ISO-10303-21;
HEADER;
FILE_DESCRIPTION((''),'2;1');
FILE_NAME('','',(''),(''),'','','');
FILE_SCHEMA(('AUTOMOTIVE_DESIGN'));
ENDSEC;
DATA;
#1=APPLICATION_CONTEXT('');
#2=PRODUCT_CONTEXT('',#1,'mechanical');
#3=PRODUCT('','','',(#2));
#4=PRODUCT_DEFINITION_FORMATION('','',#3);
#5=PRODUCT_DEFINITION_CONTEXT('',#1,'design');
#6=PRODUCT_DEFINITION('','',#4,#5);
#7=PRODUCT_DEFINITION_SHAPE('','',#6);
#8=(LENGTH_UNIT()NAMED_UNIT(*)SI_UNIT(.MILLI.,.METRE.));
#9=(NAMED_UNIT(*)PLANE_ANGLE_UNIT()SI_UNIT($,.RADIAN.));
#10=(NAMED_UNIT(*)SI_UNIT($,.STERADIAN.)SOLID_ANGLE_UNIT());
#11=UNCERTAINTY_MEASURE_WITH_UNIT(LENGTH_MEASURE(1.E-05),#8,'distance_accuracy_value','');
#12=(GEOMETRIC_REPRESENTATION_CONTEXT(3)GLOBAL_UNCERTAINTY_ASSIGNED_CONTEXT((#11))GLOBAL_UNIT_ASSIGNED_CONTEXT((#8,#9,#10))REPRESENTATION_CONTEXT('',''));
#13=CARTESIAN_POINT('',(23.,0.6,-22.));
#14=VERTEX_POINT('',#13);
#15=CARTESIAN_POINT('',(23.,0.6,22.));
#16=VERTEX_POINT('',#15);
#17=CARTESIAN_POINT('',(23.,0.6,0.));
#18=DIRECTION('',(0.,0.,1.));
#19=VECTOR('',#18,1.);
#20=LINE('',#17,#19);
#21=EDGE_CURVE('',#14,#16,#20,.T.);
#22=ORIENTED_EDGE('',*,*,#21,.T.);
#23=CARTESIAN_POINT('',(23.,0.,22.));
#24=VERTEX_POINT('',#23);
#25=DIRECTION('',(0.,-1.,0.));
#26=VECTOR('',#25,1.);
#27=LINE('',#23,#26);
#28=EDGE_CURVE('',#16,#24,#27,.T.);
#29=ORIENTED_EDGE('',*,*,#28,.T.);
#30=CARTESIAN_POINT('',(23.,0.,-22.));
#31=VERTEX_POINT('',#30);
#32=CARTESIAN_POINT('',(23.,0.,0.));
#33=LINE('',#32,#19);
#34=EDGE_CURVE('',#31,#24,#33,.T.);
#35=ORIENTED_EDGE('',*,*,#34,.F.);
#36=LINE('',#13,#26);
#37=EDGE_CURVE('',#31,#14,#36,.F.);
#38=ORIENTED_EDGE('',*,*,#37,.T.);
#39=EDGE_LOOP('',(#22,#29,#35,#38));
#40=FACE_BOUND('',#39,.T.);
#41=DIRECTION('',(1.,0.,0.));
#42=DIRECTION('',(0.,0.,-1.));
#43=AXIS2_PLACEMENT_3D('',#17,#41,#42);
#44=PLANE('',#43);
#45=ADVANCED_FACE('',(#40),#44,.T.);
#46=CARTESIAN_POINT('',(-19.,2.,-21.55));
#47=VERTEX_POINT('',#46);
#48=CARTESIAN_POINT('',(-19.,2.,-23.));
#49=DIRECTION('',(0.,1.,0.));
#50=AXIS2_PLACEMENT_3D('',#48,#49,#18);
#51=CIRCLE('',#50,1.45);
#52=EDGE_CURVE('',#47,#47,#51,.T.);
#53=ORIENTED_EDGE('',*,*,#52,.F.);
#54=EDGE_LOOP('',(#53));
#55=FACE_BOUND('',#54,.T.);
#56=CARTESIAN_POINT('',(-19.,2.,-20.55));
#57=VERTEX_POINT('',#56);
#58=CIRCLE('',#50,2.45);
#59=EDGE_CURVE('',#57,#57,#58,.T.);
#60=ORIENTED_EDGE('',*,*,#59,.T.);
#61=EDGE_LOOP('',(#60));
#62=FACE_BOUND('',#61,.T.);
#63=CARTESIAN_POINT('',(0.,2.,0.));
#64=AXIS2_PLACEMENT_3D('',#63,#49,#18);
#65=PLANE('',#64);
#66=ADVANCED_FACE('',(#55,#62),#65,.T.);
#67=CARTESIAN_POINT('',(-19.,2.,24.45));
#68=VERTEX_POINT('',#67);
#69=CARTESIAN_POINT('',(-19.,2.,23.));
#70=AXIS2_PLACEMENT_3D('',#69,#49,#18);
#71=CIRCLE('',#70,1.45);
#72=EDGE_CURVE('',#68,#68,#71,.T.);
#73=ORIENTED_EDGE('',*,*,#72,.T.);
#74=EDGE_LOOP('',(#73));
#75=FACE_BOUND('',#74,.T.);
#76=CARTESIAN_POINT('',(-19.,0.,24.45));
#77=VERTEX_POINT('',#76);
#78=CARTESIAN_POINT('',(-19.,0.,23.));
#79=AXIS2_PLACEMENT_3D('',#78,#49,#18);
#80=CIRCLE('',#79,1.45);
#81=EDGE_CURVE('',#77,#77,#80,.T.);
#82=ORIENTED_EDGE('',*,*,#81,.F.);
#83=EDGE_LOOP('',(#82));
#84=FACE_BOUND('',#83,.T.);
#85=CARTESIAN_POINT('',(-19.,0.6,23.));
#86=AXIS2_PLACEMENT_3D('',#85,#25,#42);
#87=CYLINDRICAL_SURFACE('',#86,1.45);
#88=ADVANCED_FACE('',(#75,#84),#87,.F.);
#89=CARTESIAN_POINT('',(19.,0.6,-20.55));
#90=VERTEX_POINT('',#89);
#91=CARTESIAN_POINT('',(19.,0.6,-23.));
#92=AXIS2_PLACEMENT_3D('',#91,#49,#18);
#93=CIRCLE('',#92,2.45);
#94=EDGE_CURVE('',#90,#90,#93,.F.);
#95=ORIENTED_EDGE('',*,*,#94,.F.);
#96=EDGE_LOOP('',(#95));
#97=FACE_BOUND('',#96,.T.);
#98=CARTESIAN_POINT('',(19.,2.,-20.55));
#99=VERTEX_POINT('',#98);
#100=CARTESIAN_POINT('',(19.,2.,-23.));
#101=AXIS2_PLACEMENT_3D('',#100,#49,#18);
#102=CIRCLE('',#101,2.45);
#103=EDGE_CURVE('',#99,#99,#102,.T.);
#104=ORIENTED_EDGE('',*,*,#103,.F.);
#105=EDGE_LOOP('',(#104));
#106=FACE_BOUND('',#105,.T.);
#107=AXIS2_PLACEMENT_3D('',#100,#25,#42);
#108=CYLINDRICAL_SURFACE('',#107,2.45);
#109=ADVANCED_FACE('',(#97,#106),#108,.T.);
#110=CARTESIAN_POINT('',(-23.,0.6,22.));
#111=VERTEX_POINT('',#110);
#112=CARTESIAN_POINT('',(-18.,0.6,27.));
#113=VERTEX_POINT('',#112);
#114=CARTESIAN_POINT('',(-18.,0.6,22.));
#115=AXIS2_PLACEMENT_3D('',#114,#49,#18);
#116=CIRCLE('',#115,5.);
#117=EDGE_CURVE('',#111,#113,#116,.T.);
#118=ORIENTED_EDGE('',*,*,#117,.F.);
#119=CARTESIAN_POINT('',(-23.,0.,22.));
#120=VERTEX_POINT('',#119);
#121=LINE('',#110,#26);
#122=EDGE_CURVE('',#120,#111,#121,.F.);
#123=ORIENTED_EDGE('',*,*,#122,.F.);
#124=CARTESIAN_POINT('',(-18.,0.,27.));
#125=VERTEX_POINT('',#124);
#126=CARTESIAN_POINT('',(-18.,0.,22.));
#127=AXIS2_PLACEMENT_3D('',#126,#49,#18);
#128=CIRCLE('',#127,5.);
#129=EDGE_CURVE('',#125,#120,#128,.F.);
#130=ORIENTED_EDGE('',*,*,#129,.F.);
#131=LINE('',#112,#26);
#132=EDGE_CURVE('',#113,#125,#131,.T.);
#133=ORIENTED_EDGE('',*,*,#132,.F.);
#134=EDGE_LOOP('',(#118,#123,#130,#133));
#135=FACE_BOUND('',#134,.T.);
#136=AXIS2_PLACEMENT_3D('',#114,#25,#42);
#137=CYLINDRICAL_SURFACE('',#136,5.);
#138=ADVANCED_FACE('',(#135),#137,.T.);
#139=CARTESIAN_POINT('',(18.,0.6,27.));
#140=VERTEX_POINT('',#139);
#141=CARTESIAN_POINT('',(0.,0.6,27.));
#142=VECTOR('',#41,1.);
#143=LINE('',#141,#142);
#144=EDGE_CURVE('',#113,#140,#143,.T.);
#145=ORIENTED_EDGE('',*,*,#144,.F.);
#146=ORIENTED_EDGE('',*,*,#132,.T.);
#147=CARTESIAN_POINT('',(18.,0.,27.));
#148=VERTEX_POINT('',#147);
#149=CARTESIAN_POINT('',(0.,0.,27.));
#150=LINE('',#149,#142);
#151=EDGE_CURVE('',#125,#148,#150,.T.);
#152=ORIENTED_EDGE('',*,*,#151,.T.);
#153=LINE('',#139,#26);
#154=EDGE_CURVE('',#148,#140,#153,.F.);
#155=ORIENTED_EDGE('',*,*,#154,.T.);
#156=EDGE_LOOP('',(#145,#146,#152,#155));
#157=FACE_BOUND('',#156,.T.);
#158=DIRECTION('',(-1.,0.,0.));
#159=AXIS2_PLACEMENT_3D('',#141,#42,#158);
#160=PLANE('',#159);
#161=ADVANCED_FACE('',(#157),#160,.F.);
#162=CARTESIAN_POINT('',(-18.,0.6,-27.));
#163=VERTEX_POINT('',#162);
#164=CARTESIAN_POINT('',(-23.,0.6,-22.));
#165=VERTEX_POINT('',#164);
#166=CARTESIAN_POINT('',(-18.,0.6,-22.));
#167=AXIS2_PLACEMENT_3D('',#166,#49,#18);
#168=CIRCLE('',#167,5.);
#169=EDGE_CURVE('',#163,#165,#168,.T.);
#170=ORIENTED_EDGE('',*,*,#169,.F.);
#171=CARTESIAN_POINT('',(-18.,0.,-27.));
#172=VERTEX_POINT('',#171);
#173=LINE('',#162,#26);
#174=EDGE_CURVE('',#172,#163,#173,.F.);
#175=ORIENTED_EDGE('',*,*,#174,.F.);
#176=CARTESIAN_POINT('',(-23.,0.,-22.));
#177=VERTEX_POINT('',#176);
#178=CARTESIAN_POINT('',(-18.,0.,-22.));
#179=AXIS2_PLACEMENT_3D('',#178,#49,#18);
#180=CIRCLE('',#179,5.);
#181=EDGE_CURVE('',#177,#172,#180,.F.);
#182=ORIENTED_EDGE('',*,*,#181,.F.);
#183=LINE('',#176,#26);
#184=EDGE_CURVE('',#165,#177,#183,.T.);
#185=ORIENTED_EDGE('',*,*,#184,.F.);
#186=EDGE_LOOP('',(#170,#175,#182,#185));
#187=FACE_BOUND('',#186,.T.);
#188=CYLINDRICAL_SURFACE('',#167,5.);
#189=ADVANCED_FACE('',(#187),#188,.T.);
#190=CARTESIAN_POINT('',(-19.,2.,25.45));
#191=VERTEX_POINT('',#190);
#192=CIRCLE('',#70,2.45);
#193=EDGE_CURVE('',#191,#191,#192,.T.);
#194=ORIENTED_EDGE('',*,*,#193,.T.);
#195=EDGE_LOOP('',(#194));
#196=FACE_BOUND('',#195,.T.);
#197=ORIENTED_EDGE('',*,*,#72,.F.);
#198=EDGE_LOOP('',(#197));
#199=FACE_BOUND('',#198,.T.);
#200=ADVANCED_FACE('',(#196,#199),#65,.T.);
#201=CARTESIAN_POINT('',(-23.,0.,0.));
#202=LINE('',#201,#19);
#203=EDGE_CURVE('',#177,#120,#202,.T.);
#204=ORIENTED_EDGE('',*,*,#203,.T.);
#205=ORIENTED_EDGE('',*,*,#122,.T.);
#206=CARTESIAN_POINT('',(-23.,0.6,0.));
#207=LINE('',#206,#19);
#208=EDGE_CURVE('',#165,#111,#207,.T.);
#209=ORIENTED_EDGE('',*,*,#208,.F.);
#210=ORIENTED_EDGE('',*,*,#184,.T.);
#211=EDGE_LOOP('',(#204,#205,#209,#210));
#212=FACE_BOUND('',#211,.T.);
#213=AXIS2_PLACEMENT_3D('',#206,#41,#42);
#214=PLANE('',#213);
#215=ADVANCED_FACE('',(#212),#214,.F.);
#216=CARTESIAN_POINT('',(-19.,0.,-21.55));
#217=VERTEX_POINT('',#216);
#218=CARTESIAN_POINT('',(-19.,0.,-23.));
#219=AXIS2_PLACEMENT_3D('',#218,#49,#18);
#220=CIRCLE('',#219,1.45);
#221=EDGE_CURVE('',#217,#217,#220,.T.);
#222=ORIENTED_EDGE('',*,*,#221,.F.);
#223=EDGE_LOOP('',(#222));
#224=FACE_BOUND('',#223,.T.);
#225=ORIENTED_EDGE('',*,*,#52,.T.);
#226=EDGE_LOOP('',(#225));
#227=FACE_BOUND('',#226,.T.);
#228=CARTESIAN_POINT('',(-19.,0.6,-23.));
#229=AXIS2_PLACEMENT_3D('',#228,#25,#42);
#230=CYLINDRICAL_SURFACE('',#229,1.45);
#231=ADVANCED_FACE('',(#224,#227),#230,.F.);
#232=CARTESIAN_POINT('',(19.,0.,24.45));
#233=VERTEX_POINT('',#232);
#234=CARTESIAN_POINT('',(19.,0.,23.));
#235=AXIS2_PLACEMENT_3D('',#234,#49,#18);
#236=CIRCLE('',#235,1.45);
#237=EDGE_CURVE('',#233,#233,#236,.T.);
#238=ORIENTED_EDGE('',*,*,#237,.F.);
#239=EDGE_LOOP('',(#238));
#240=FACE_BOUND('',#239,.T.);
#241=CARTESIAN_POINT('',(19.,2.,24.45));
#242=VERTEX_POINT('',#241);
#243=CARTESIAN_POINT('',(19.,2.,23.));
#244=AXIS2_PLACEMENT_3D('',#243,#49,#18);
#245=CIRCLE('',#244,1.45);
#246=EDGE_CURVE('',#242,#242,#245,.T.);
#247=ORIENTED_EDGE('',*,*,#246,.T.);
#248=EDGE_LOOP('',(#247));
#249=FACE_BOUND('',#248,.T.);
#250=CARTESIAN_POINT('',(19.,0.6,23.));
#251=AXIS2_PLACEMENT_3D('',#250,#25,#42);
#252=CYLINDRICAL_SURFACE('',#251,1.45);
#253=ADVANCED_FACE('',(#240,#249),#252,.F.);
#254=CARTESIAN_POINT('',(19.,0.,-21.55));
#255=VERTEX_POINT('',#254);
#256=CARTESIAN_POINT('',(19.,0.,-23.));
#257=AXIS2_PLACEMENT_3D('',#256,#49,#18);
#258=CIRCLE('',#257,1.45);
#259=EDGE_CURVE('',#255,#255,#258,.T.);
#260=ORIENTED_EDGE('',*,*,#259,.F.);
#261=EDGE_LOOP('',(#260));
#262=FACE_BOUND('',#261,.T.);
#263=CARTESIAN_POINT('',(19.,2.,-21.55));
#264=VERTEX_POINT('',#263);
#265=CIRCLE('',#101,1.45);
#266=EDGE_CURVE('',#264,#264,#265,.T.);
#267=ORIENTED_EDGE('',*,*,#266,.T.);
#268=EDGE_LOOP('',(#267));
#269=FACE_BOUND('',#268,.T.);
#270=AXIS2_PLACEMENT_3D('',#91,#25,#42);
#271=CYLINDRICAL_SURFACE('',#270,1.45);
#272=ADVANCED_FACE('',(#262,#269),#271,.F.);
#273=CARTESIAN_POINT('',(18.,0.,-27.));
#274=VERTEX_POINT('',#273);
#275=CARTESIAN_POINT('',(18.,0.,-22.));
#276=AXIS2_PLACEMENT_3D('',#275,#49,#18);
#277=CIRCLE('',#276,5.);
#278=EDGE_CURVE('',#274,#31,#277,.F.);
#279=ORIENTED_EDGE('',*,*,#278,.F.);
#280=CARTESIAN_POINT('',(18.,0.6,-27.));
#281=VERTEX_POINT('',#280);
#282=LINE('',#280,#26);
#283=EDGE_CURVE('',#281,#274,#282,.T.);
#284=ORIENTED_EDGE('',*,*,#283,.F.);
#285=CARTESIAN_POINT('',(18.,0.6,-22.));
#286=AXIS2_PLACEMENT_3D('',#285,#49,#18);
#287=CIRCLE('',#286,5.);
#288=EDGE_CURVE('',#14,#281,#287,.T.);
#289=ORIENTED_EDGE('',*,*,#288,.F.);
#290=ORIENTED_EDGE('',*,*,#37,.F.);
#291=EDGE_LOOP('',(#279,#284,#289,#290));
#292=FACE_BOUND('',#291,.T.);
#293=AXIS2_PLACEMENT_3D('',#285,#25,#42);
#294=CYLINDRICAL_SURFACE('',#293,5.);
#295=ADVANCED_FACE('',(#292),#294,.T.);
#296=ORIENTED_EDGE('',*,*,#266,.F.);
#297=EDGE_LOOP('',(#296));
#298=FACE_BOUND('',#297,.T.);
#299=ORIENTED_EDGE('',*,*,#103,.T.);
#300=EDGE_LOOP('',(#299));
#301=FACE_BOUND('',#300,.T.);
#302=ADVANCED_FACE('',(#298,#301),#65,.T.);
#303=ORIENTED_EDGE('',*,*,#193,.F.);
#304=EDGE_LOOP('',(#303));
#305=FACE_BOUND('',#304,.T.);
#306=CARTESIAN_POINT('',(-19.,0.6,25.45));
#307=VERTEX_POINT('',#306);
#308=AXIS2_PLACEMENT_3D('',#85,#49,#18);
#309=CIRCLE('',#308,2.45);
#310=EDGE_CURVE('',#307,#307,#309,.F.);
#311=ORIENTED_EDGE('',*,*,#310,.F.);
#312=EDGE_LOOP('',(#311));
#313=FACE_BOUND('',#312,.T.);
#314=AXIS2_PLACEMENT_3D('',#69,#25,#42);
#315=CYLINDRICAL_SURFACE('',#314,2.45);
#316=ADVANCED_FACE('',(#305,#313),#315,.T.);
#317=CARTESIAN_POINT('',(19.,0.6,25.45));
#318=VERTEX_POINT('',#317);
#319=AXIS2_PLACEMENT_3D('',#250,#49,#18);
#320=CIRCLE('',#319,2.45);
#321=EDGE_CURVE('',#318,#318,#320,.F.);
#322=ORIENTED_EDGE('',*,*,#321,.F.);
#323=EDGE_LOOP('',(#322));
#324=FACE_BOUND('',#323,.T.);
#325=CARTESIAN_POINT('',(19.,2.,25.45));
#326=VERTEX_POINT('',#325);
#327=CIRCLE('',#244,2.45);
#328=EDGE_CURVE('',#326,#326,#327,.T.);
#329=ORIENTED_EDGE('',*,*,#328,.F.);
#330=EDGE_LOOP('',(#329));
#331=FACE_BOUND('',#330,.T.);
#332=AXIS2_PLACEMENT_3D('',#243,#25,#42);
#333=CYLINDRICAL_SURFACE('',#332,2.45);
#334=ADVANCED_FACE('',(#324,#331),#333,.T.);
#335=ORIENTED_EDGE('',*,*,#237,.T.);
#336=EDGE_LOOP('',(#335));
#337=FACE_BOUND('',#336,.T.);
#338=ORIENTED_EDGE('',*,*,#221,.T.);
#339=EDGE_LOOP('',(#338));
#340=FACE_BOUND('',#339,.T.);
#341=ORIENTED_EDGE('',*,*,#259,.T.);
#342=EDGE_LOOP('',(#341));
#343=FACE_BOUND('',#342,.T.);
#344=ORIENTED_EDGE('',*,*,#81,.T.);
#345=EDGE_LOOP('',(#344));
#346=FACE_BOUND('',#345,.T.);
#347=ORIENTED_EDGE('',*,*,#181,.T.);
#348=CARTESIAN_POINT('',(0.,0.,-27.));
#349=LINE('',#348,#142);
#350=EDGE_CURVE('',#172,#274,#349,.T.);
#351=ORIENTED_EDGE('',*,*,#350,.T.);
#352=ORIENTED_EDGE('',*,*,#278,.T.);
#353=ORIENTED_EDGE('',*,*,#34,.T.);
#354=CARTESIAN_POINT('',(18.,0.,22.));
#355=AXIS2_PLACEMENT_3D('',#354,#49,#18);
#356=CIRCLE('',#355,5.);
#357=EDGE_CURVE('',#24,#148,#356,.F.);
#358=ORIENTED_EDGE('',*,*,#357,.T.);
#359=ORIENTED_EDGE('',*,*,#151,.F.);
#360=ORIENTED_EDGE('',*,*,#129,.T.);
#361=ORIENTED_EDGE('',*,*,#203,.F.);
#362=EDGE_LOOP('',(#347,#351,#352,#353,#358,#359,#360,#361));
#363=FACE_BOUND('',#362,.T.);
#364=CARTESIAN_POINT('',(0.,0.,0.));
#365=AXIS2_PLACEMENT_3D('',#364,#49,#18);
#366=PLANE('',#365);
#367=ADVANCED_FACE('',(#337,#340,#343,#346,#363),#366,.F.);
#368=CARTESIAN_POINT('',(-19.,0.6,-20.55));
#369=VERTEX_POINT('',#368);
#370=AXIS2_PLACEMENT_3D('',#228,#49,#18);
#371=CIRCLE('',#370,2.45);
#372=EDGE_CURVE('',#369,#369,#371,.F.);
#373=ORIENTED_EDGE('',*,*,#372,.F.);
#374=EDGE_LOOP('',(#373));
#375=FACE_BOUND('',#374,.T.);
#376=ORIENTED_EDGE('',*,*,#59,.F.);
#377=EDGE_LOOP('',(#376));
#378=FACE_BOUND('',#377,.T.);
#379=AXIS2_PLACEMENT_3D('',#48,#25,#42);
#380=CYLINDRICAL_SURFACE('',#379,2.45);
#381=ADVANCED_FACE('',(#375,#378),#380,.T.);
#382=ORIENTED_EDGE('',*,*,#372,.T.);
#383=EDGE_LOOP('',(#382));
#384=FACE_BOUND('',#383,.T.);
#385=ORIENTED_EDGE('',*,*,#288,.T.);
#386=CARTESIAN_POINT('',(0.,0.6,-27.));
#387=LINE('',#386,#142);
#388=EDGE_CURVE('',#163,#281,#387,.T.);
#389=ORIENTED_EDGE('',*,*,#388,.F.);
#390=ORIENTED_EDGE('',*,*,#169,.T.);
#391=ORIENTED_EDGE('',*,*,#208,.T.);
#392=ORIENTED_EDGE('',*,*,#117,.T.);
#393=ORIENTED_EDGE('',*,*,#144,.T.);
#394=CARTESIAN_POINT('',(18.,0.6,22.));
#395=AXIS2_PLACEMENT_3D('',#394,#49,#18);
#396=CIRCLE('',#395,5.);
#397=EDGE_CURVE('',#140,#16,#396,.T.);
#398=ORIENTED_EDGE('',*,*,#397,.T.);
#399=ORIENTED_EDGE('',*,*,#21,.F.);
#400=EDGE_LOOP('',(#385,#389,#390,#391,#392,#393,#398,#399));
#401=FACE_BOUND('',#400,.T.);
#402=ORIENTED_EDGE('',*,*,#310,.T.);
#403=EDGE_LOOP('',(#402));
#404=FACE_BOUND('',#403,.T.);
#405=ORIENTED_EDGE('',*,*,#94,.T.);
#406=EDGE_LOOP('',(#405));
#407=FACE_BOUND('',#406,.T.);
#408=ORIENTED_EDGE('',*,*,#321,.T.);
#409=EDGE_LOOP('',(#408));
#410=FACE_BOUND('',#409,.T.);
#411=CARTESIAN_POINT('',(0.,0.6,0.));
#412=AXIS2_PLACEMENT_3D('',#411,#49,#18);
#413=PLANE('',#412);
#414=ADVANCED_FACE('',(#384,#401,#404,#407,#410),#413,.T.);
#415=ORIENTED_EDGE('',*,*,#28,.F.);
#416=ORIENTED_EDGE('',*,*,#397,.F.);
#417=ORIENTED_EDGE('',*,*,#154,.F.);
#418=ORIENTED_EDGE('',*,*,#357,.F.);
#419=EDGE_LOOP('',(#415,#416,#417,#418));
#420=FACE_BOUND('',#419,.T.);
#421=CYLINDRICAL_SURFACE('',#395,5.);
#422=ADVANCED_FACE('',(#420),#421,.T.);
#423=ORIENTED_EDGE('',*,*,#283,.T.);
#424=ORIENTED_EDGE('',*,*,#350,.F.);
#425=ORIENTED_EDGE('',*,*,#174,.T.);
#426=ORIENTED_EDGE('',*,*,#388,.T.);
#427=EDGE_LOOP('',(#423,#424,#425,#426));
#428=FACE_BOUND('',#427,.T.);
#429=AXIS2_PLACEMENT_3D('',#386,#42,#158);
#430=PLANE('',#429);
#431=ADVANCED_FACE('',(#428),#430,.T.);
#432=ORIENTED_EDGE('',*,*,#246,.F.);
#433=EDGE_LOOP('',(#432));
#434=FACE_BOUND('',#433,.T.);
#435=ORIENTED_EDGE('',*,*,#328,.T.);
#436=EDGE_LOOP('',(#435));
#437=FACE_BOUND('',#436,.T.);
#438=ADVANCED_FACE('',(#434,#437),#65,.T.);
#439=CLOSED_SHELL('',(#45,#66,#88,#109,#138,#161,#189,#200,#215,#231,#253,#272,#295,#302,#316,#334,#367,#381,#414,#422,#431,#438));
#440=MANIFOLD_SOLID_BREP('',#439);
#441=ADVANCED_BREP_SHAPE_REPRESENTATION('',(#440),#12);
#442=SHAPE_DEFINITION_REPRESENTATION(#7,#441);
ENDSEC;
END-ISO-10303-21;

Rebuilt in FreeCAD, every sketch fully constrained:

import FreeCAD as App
import Part
import Sketcher
Q = App.Units.Quantity


def edges_at(feature, points):
    """Names of the edges that pass closest to the given points."""
    edges = feature.Shape.Edges
    near = lambda p: min(range(len(edges)), key=lambda i: edges[i].distToShape(Part.Vertex(*p))[0])
    return sorted({f"Edge{near(p) + 1}" for p in points})


def add_polygon(sketch, points):
    """Adds a closed chain of lines whose ends are joined by coincident constraints."""
    first, n = sketch.GeometryCount, len(points)
    for a, b in zip(points, points[1:] + points[:1]):
        sketch.addGeometry(Part.LineSegment(App.Vector(*a, 0), App.Vector(*b, 0)), False)
    for i in range(n):
        sketch.addConstraint(Sketcher.Constraint("Coincident", first + i, 2, first + (i + 1) % n, 1))

doc = App.newDocument("Part")
body = doc.addObject("PartDesign::Body", "Body")

sketch1 = body.newObject("Sketcher::SketchObject", "Sketch")
sketch1.AttachmentSupport = (doc.getObject("XZ_Plane"), [""])
sketch1.MapMode = "FlatFace"
add_polygon(sketch1, [(-23, -27), (-23, 27), (23, 27), (23, -27)])
sketch1.addGeometry(Part.Circle(App.Vector(-19, 23, 0), App.Vector(0, 0, 1), 1.4), False)
sketch1.addGeometry(Part.Circle(App.Vector(19, 23, 0), App.Vector(0, 0, 1), 1.4), False)
sketch1.addGeometry(Part.Circle(App.Vector(-19, -23, 0), App.Vector(0, 0, 1), 1.4), False)
sketch1.addGeometry(Part.Circle(App.Vector(19, -23, 0), App.Vector(0, 0, 1), 1.4), False)
sketch1.addConstraint([
    Sketcher.Constraint("Vertical", 0),
    Sketcher.Constraint("Horizontal", 1),
    Sketcher.Constraint("Vertical", 2),
    Sketcher.Constraint("Horizontal", 3),
    Sketcher.Constraint("Equal", 4, 5),
    Sketcher.Constraint("Equal", 5, 6),
    Sketcher.Constraint("Equal", 6, 7),
    Sketcher.Constraint("Symmetric", 5, 3, 6, 3, -1, 1),
    Sketcher.Constraint("Symmetric", 4, 3, 7, 3, -1, 1),
    Sketcher.Constraint("Symmetric", 0, 2, 2, 2, -1, 1),
    Sketcher.Constraint("Symmetric", 4, 3, 5, 3, -2),
    Sketcher.Constraint("Diameter", 4, Q("2.9 mm")),
    Sketcher.Constraint("DistanceX", 1, 1, 1, 2, Q("46 mm")),
    Sketcher.Constraint("DistanceY", 0, 1, 0, 2, Q("54 mm")),
    Sketcher.Constraint("DistanceX", 4, 3, -1, 1, Q("19 mm")),
    Sketcher.Constraint("DistanceY", -1, 1, 4, 3, Q("23 mm")),
])
pad1 = body.newObject("PartDesign::Pad", "Pad")
pad1.Profile = sketch1
pad1.Length = 0.6
pad1.Reversed = True

sketch2 = body.newObject("Sketcher::SketchObject", "Sketch001")
sketch2.AttachmentSupport = (doc.getObject("XZ_Plane"), [""])
sketch2.MapMode = "FlatFace"
sketch2.addGeometry([
    Part.Circle(App.Vector(-19, 23, 0), App.Vector(0, 0, 1), 2.5),
    Part.Circle(App.Vector(-19, 23, 0), App.Vector(0, 0, 1), 1.4),
    Part.Circle(App.Vector(19, 23, 0), App.Vector(0, 0, 1), 2.5),
    Part.Circle(App.Vector(19, 23, 0), App.Vector(0, 0, 1), 1.4),
    Part.Circle(App.Vector(-19, -23, 0), App.Vector(0, 0, 1), 2.5),
    Part.Circle(App.Vector(-19, -23, 0), App.Vector(0, 0, 1), 1.4),
    Part.Circle(App.Vector(19, -23, 0), App.Vector(0, 0, 1), 2.5),
    Part.Circle(App.Vector(19, -23, 0), App.Vector(0, 0, 1), 1.4),
], False)
sketch2.addConstraint([
    Sketcher.Constraint("Coincident", 1, 3, 0, 3),
    Sketcher.Constraint("Coincident", 3, 3, 2, 3),
    Sketcher.Constraint("Coincident", 5, 3, 4, 3),
    Sketcher.Constraint("Coincident", 7, 3, 6, 3),
    Sketcher.Constraint("Equal", 0, 2),
    Sketcher.Constraint("Equal", 1, 3),
    Sketcher.Constraint("Equal", 2, 4),
    Sketcher.Constraint("Equal", 3, 5),
    Sketcher.Constraint("Equal", 4, 6),
    Sketcher.Constraint("Equal", 5, 7),
    Sketcher.Constraint("Symmetric", 2, 3, 4, 3, -1, 1),
    Sketcher.Constraint("Symmetric", 0, 3, 6, 3, -1, 1),
    Sketcher.Constraint("Symmetric", 0, 3, 2, 3, -2),
    Sketcher.Constraint("Diameter", 0, Q("4.9 mm")),
    Sketcher.Constraint("Diameter", 1, Q("2.9 mm")),
    Sketcher.Constraint("DistanceX", 0, 3, -1, 1, Q("19 mm")),
    Sketcher.Constraint("DistanceY", -1, 1, 0, 3, Q("23 mm")),
])
pad2 = body.newObject("PartDesign::Pad", "Pad001")
pad2.Profile = sketch2
pad2.Length = 2
pad2.Reversed = True
doc.recompute()

fillet = body.newObject("PartDesign::Fillet", "Fillet")
fillet.Base = (pad2, edges_at(pad2, [
    (23, 0.3, -27),
    (23, 0.3, 27),
    (-23, 0.3, 27),
    (-23, 0.3, -27),
]))
fillet.Radius = 5

doc.recompute()
